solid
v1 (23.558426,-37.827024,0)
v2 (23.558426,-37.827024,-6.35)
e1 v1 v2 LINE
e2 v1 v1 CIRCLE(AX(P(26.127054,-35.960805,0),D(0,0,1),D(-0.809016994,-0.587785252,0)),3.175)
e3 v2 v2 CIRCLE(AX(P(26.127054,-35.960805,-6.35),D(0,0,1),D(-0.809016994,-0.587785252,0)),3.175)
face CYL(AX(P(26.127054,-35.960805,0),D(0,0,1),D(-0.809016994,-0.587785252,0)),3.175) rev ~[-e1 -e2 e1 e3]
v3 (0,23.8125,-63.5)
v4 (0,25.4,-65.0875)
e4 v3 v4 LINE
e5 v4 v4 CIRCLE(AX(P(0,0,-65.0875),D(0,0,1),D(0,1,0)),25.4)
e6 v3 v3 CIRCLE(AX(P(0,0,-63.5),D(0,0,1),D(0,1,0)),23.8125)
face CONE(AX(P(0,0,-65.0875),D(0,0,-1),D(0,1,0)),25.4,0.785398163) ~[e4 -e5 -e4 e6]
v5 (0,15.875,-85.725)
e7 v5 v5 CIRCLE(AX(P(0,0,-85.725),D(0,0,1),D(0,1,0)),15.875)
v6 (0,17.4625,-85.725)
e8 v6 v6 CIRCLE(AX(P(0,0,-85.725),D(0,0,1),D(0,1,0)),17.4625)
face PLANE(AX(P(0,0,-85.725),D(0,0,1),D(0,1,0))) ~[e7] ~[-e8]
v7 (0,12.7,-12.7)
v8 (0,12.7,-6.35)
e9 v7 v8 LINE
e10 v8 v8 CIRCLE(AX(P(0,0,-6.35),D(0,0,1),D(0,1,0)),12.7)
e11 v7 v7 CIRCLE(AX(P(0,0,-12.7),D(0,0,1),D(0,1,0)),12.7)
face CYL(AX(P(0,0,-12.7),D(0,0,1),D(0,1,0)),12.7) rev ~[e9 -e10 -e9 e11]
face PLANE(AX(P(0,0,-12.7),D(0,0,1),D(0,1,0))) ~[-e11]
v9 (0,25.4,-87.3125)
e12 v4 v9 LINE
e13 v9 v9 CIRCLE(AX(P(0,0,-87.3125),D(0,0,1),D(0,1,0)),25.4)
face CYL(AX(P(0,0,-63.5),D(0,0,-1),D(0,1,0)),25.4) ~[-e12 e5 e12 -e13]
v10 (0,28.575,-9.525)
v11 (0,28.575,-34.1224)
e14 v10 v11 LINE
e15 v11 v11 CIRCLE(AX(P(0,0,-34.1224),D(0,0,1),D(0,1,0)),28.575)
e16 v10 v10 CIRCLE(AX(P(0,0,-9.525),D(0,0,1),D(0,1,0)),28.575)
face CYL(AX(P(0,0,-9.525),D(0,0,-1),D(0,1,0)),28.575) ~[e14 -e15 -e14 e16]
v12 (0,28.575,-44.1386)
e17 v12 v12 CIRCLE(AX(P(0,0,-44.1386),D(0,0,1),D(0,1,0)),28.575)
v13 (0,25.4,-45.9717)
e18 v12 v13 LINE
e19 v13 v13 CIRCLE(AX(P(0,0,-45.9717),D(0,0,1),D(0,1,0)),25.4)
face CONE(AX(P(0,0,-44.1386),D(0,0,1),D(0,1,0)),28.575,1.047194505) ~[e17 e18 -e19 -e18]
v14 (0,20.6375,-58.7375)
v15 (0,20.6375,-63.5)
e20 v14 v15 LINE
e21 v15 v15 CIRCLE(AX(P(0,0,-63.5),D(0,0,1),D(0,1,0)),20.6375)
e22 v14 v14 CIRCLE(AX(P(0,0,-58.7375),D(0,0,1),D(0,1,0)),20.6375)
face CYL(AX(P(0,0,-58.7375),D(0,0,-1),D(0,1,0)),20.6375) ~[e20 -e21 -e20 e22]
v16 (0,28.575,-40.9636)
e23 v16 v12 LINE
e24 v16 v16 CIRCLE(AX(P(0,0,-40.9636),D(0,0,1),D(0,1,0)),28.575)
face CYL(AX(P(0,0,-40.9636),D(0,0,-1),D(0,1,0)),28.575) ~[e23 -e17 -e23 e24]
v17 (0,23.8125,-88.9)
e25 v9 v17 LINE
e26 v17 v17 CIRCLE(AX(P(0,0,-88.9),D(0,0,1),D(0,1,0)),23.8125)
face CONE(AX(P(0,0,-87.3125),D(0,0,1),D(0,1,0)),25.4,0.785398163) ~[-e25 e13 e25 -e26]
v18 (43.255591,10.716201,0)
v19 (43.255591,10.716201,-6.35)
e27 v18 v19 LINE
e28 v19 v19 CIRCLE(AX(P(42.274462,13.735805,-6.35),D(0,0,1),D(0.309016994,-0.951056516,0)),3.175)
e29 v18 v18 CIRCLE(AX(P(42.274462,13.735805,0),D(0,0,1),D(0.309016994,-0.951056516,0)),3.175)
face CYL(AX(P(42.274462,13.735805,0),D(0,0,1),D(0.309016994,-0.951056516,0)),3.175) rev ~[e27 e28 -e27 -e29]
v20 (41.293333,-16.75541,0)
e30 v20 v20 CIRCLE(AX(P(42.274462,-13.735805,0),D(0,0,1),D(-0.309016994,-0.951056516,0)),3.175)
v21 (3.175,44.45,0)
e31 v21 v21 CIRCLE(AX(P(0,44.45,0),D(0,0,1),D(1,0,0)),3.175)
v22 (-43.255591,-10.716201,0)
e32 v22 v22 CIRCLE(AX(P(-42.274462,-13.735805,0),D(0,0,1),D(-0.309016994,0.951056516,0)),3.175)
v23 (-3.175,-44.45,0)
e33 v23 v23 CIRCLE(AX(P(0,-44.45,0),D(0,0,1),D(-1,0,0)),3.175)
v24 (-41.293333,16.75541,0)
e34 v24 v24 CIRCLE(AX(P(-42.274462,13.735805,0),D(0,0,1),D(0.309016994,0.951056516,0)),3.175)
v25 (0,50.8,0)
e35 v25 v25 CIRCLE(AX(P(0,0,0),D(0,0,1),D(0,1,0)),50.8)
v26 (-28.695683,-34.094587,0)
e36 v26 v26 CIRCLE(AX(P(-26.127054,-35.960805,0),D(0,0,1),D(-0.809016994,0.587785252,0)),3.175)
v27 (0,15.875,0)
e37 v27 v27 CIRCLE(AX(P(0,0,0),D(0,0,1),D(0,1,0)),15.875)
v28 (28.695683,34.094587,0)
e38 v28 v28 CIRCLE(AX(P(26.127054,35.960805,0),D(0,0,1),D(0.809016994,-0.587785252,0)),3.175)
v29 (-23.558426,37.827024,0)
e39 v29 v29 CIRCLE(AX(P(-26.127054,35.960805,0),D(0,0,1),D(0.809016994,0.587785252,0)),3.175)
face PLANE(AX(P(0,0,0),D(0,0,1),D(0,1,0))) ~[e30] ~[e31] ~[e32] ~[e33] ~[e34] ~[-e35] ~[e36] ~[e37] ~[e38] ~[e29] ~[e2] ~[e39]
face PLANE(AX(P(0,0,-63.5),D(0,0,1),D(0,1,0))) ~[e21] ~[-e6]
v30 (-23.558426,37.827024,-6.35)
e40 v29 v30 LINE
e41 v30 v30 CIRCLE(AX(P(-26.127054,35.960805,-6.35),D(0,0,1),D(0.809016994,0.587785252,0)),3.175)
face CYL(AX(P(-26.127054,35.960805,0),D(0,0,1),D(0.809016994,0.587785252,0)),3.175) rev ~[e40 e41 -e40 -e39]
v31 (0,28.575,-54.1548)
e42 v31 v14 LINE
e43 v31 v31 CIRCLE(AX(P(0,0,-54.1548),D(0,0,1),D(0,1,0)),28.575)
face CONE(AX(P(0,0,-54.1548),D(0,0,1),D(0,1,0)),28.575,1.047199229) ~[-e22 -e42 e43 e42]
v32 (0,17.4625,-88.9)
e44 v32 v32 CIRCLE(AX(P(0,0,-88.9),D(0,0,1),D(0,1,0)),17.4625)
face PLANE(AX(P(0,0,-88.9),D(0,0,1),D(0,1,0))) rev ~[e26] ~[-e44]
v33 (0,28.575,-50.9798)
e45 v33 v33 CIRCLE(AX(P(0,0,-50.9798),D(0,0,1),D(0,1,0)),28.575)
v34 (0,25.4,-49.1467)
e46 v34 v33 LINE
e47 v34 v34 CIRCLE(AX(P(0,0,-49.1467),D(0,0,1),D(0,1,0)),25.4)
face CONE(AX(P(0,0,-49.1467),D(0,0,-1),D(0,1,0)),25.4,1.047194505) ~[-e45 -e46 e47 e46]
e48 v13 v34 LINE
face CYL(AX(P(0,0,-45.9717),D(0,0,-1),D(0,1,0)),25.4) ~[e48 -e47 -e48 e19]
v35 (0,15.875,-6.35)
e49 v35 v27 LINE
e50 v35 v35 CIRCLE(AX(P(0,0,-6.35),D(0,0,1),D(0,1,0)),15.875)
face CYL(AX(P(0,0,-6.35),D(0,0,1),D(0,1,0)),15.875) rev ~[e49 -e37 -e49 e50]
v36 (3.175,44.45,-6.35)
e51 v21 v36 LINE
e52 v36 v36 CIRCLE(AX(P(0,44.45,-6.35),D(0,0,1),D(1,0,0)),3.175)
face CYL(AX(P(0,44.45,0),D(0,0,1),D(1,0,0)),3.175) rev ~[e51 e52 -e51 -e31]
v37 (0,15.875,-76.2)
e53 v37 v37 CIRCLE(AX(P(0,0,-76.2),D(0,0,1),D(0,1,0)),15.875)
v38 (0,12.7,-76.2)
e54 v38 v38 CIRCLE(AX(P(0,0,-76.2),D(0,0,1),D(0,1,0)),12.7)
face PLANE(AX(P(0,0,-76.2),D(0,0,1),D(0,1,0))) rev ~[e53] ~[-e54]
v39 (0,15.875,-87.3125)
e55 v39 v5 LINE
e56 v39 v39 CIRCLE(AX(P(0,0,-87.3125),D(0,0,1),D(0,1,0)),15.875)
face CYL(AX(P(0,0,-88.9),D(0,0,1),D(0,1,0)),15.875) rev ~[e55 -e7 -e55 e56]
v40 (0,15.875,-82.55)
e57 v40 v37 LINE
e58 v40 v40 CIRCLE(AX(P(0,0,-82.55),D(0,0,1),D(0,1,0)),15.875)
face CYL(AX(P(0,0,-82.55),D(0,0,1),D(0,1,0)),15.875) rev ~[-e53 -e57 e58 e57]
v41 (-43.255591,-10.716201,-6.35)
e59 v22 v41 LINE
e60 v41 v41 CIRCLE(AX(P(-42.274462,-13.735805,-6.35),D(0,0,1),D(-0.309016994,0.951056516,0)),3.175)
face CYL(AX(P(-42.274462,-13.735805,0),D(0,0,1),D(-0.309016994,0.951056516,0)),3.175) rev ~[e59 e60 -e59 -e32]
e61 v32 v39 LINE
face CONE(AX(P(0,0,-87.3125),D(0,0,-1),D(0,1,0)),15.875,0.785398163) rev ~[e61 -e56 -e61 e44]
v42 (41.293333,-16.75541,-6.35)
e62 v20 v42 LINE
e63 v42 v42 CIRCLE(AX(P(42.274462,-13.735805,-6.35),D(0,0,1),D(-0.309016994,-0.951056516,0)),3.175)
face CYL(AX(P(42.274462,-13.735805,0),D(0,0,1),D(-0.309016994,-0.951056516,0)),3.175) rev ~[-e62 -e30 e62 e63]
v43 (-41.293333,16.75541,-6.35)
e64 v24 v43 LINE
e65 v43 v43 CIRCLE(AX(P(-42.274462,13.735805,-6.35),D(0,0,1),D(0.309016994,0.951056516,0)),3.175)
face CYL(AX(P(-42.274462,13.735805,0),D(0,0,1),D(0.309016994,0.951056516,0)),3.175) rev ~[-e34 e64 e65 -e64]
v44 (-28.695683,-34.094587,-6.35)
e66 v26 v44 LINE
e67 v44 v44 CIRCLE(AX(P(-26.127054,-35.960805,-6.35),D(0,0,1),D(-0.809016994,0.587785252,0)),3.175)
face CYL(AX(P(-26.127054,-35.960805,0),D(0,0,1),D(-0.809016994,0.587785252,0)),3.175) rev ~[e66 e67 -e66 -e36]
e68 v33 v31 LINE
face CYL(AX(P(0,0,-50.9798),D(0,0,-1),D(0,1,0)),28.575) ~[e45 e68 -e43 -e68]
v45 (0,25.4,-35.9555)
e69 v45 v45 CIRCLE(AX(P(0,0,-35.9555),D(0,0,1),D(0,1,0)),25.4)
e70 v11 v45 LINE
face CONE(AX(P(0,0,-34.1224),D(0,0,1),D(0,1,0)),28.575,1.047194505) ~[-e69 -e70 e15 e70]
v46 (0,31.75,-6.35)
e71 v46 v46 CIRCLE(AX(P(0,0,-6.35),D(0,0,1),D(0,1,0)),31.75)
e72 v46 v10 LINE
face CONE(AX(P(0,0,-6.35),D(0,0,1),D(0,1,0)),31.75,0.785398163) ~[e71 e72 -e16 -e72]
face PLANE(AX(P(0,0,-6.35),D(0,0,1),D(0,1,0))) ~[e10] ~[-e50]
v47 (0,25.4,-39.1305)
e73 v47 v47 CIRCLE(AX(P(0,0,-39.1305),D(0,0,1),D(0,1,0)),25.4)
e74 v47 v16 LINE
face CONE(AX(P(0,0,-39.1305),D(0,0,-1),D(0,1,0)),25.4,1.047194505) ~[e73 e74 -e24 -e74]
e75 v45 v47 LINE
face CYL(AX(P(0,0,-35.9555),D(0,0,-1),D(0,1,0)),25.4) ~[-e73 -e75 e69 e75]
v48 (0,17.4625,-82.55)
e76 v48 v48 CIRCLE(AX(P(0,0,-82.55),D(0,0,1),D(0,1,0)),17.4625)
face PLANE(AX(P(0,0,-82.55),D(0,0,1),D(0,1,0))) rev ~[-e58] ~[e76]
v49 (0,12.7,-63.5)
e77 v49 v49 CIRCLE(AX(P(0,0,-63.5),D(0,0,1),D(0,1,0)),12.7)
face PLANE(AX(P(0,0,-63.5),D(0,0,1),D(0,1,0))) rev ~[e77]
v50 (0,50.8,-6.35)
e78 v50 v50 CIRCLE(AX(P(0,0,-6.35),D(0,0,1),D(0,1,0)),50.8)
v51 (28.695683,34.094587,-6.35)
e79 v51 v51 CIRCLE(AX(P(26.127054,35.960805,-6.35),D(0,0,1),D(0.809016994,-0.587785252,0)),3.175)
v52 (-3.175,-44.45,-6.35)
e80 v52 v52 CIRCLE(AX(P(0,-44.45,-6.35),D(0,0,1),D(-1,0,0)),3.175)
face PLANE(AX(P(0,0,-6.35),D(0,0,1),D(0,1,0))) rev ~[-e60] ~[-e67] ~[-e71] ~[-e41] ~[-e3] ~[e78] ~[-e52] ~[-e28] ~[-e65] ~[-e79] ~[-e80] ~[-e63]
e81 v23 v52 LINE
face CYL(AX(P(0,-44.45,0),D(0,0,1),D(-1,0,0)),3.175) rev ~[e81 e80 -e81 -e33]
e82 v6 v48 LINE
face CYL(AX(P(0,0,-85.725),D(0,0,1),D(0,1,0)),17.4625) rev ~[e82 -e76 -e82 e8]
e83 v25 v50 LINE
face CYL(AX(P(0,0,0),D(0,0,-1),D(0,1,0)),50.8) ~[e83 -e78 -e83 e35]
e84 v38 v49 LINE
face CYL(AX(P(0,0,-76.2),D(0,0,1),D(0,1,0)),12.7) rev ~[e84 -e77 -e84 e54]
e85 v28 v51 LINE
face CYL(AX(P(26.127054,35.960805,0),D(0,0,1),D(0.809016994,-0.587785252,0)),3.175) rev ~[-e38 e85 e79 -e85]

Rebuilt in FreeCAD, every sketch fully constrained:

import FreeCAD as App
import Part
import Sketcher
Q = App.Units.Quantity


def edges_at(feature, points):
    """Names of the edges that pass closest to the given points."""
    edges = feature.Shape.Edges
    near = lambda p: min(range(len(edges)), key=lambda i: edges[i].distToShape(Part.Vertex(*p))[0])
    return sorted({f"Edge{near(p) + 1}" for p in points})

doc = App.newDocument("Part")
body = doc.addObject("PartDesign::Body", "Body")

# Sketch on YZ plane
sketch1 = body.newObject("Sketcher::SketchObject", "Sketch")
sketch1.AttachmentSupport = (doc.getObject("YZ_Plane"), [""])
sketch1.MapMode = "FlatFace"
sketch1.addGeometry([
    Part.LineSegment(App.Vector(50.8, 0, 0), App.Vector(15.875, 0, 0)),  # 0
    Part.LineSegment(App.Vector(15.875, 0, 0), App.Vector(15.875, -6.35, 0)),  # 1
    Part.LineSegment(App.Vector(15.875, -6.35, 0), App.Vector(12.7, -6.35, 0)),  # 2
    Part.LineSegment(App.Vector(12.7, -6.35, 0), App.Vector(12.7, -12.7, 0)),  # 3
    Part.LineSegment(App.Vector(12.7, -12.7, 0), App.Vector(0, -12.7, 0)),  # 4
    Part.LineSegment(App.Vector(0, -12.7, 0), App.Vector(0, -63.5, 0)),  # 5
    Part.LineSegment(App.Vector(0, -63.5, 0), App.Vector(12.7, -63.5, 0)),  # 6
    Part.LineSegment(App.Vector(12.7, -63.5, 0), App.Vector(12.7, -76.2, 0)),  # 7
    Part.LineSegment(App.Vector(12.7, -76.2, 0), App.Vector(15.875, -76.2, 0)),  # 8
    Part.LineSegment(App.Vector(15.875, -76.2, 0), App.Vector(15.875, -82.55, 0)),  # 9
    Part.LineSegment(App.Vector(15.875, -82.55, 0), App.Vector(17.4625, -82.55, 0)),  # 10
    Part.LineSegment(App.Vector(17.4625, -82.55, 0), App.Vector(17.4625, -85.725, 0)),  # 11
    Part.LineSegment(App.Vector(17.4625, -85.725, 0), App.Vector(15.875, -85.725, 0)),  # 12
    Part.LineSegment(App.Vector(15.875, -85.725, 0), App.Vector(15.875, -88.9, 0)),  # 13
    Part.LineSegment(App.Vector(15.875, -88.9, 0), App.Vector(25.4, -88.9, 0)),  # 14
    Part.LineSegment(App.Vector(25.4, -88.9, 0), App.Vector(25.4, -63.5, 0)),  # 15
    Part.LineSegment(App.Vector(25.4, -63.5, 0), App.Vector(20.6375, -63.5, 0)),  # 16
    Part.LineSegment(App.Vector(20.6375, -63.5, 0), App.Vector(20.6375, -58.7375, 0)),  # 17
    Part.LineSegment(App.Vector(20.6375, -58.7375, 0), App.Vector(28.575, -54.1548, 0)),  # 18
    Part.LineSegment(App.Vector(28.575, -54.1548, 0), App.Vector(28.575, -50.9798, 0)),  # 19
    Part.LineSegment(App.Vector(28.575, -50.9798, 0), App.Vector(25.4, -49.1467, 0)),  # 20
    Part.LineSegment(App.Vector(25.4, -49.1467, 0), App.Vector(25.4, -45.9717, 0)),  # 21
    Part.LineSegment(App.Vector(25.4, -45.9717, 0), App.Vector(28.575, -44.1386, 0)),  # 22
    Part.LineSegment(App.Vector(28.575, -44.1386, 0), App.Vector(28.575, -40.9636, 0)),  # 23
    Part.LineSegment(App.Vector(28.575, -40.9636, 0), App.Vector(25.4, -39.1305, 0)),  # 24
    Part.LineSegment(App.Vector(25.4, -39.1305, 0), App.Vector(25.4, -35.9555, 0)),  # 25
    Part.LineSegment(App.Vector(25.4, -35.9555, 0), App.Vector(28.575, -34.1224, 0)),  # 26
    Part.LineSegment(App.Vector(28.575, -34.1224, 0), App.Vector(28.575, -9.525, 0)),  # 27
    Part.LineSegment(App.Vector(28.575, -9.525, 0), App.Vector(31.75, -6.35, 0)),  # 28
    Part.LineSegment(App.Vector(31.75, -6.35, 0), App.Vector(50.8, -6.35, 0)),  # 29
    Part.LineSegment(App.Vector(50.8, -6.35, 0), App.Vector(50.8, 0, 0)),  # 30
], False)
sketch1.addConstraint([
    Sketcher.Constraint("Coincident", 0, 2, 1, 1),
    Sketcher.Constraint("Coincident", 1, 2, 2, 1),
    Sketcher.Constraint("Coincident", 2, 2, 3, 1),
    Sketcher.Constraint("Coincident", 3, 2, 4, 1),
    Sketcher.Constraint("Coincident", 4, 2, 5, 1),
    Sketcher.Constraint("Coincident", 5, 2, 6, 1),
    Sketcher.Constraint("Coincident", 6, 2, 7, 1),
    Sketcher.Constraint("Coincident", 7, 2, 8, 1),
    Sketcher.Constraint("Coincident", 8, 2, 9, 1),
    Sketcher.Constraint("Coincident", 9, 2, 10, 1),
    Sketcher.Constraint("Coincident", 10, 2, 11, 1),
    Sketcher.Constraint("Coincident", 11, 2, 12, 1),
    Sketcher.Constraint("Coincident", 12, 2, 13, 1),
    Sketcher.Constraint("Coincident", 13, 2, 14, 1),
    Sketcher.Constraint("Coincident", 14, 2, 15, 1),
    Sketcher.Constraint("Coincident", 15, 2, 16, 1),
    Sketcher.Constraint("Coincident", 16, 2, 17, 1),
    Sketcher.Constraint("Coincident", 17, 2, 18, 1),
    Sketcher.Constraint("Coincident", 18, 2, 19, 1),
    Sketcher.Constraint("Coincident", 19, 2, 20, 1),
    Sketcher.Constraint("Coincident", 20, 2, 21, 1),
    Sketcher.Constraint("Coincident", 21, 2, 22, 1),
    Sketcher.Constraint("Coincident", 22, 2, 23, 1),
    Sketcher.Constraint("Coincident", 23, 2, 24, 1),
    Sketcher.Constraint("Coincident", 24, 2, 25, 1),
    Sketcher.Constraint("Coincident", 25, 2, 26, 1),
    Sketcher.Constraint("Coincident", 26, 2, 27, 1),
    Sketcher.Constraint("Coincident", 27, 2, 28, 1),
    Sketcher.Constraint("Coincident", 28, 2, 29, 1),
    Sketcher.Constraint("Coincident", 29, 2, 30, 1),
    Sketcher.Constraint("Coincident", 30, 2, 0, 1),
    Sketcher.Constraint("Horizontal", 0),
    Sketcher.Constraint("Vertical", 1),
    Sketcher.Constraint("Horizontal", 2),
    Sketcher.Constraint("Vertical", 3),
    Sketcher.Constraint("Horizontal", 4),
    Sketcher.Constraint("Vertical", 5),
    Sketcher.Constraint("Horizontal", 6),
    Sketcher.Constraint("Vertical", 7),
    Sketcher.Constraint("Horizontal", 8),
    Sketcher.Constraint("Vertical", 9),
    Sketcher.Constraint("Horizontal", 10),
    Sketcher.Constraint("Vertical", 11),
    Sketcher.Constraint("Horizontal", 12),
    Sketcher.Constraint("Vertical", 13),
    Sketcher.Constraint("Horizontal", 14),
    Sketcher.Constraint("Vertical", 15),
    Sketcher.Constraint("Horizontal", 16),
    Sketcher.Constraint("Vertical", 17),
    Sketcher.Constraint("Vertical", 19),
    Sketcher.Constraint("Vertical", 21),
    Sketcher.Constraint("Vertical", 23),
    Sketcher.Constraint("Vertical", 25),
    Sketcher.Constraint("Vertical", 27),
    Sketcher.Constraint("Horizontal", 29),
    Sketcher.Constraint("Vertical", 30),
    Sketcher.Constraint("PointOnObject", 0, 2, -1),
    Sketcher.Constraint("PointOnObject", 4, 2, -2),
    Sketcher.Constraint("Parallel", 18, 22),
    Sketcher.Constraint("Parallel", 20, 24),
    Sketcher.Constraint("Parallel", 22, 26),
    Sketcher.Constraint("Horizontal", 6, 2, 15, 2),
    Sketcher.Constraint("Horizontal", 2, 2, 28, 2),
    Sketcher.Constraint("Vertical", 3, 2, 6, 2),
    Sketcher.Constraint("Vertical", 1, 2, 8, 2),
    Sketcher.Constraint("Vertical", 9, 2, 12, 2),
    Sketcher.Constraint("Vertical", 15, 2, 20, 2),
    Sketcher.Constraint("Vertical", 19, 2, 22, 2),
    Sketcher.Constraint("Vertical", 21, 2, 24, 2),
    Sketcher.Constraint("Vertical", 23, 2, 26, 2),
    Sketcher.Constraint("Equal", 1, 3),
    Sketcher.Constraint("Equal", 6, 7),
    Sketcher.Constraint("Equal", 3, 9),
    Sketcher.Constraint("Equal", 8, 11),
    Sketcher.Constraint("Equal", 11, 13),
    Sketcher.Constraint("Equal", 16, 17),
    Sketcher.Constraint("Equal", 13, 19),
    Sketcher.Constraint("Equal", 19, 21),
    Sketcher.Constraint("Equal", 21, 23),
    Sketcher.Constraint("Equal", 23, 25),
    Sketcher.Constraint("Equal", 20, 22),
    Sketcher.Constraint("DistanceY", 5, 2, 5, 1, Q("2 in")),
    Sketcher.Constraint("DistanceY", 15, 1, 15, 2, Q("1 in")),
    Sketcher.Constraint("DistanceX", 4, 2, 4, 1, Q("0.5 in")),
    Sketcher.Constraint("DistanceX", -1, 1, 14, 2, Q("1 in")),
    Sketcher.Constraint("DistanceX", -1, 1, 29, 2, Q("2 in")),
    Sketcher.Constraint("Angle", 28, Q("45 deg")),
    Sketcher.Constraint("DistanceY", 1, 2, 1, 1, Q("0.25 in")),
    Sketcher.Constraint("DistanceX", 8, 2, 18, 2, Q("0.5 in")),
    Sketcher.Constraint("DistanceX", 16, 2, 16, 1, Q("0.1875 in")),
    Sketcher.Constraint("DistanceX", -1, 1, 28, 2, Q("1.25 in")),
    Sketcher.Constraint("Angle", 18, Q("30 deg")),
    Sketcher.Constraint("DistanceX", 7, 2, 10, 2, Q("0.1875 in")),
])
revolution = body.newObject("PartDesign::Revolution", "Revolution")
revolution.Profile = sketch1
revolution.ReferenceAxis = (sketch1, ["V_Axis"])
revolution.Angle = 360
doc.recompute()

chamfer = body.newObject("PartDesign::Chamfer", "Chamfer")
chamfer.Base = (revolution, edges_at(revolution, [(-23.681, 9.185, -63.5), (-23.681, 9.185, -88.9), (-14.801, 5.741, -88.9)]))
chamfer.Size = Q("0.0625 in")

# Sketch on XY plane
sketch2 = body.newObject("Sketcher::SketchObject", "Sketch001")
sketch2.AttachmentSupport = (doc.getObject("XY_Plane"), [""])
sketch2.MapMode = "FlatFace"
sketch2.addGeometry(Part.Circle(App.Vector(0, 44.45, 0), App.Vector(0, 0, 1), 3.175), False)
sketch2.addConstraint([
    Sketcher.Constraint("PointOnObject", 0, 3, -2),
    Sketcher.Constraint("Diameter", 0, Q("0.25 in")),
    Sketcher.Constraint("DistanceY", -1, 1, 0, 3, Q("1.75 in")),
])
pocket1 = body.newObject("PartDesign::Pocket", "Pocket")
pocket1.Profile = sketch2
pocket1.Type = "ThroughAll"
doc.recompute()

polarpattern = body.newObject("PartDesign::PolarPattern", "PolarPattern")
polarpattern.Originals = [pocket1]
polarpattern.Axis = (doc.getObject("Z_Axis"), [""])
polarpattern.Angle = 360
polarpattern.Occurrences = 10
body.Tip = polarpattern

doc.recompute()
